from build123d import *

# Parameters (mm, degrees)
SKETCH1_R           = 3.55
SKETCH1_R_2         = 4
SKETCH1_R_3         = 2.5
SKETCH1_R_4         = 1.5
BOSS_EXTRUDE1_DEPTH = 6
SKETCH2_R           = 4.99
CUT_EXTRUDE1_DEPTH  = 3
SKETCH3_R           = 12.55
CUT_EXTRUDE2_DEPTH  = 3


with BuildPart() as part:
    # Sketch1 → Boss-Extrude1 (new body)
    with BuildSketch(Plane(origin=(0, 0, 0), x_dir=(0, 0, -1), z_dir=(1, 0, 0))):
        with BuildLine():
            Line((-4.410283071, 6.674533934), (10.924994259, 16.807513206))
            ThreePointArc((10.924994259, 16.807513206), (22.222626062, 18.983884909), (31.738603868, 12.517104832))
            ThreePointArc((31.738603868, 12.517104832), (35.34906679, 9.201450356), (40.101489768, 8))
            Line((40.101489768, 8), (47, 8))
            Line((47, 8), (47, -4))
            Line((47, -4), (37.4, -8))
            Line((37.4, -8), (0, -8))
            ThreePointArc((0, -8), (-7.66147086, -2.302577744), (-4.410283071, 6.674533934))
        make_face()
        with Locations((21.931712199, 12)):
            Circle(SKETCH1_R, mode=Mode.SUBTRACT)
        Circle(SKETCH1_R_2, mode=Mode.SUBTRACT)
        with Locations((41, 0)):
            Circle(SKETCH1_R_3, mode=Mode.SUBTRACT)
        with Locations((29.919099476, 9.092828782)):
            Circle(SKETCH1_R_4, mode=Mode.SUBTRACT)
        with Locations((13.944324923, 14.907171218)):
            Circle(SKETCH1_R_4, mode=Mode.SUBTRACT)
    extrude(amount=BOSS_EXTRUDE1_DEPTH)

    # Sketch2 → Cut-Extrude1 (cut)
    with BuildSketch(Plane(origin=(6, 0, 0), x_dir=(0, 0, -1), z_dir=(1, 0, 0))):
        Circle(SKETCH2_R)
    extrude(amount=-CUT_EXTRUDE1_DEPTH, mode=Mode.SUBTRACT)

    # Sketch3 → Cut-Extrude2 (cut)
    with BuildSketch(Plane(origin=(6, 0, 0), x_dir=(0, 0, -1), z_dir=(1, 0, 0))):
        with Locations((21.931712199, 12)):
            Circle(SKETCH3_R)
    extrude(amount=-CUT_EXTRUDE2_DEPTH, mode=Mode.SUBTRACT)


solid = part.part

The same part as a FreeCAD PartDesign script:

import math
import FreeCAD as App
import Part
import Sketcher

doc = App.newDocument("Part")
body = doc.addObject("PartDesign::Body", "Body")

sketch1 = body.newObject("Sketcher::SketchObject", "Sketch")
sketch1.AttachmentSupport = (doc.getObject("YZ_Plane"), [""])
sketch1.MapMode = "FlatFace"
sketch1.addGeometry([
    Part.LineSegment(App.Vector(16.8, -10.9, 0), App.Vector(6.7, 4.4, 0)),
    Part.ArcOfCircle(Part.Circle(App.Vector(0, 0, 0), App.Vector(0, 0, 1), 8), math.radians(33), math.radians(180)),
    Part.LineSegment(App.Vector(-8, 0, 0), App.Vector(-8, -37.4, 0)),
    Part.LineSegment(App.Vector(-8, -37.4, 0), App.Vector(-4, -47, 0)),
    Part.LineSegment(App.Vector(-4, -47, 0), App.Vector(8, -47, 0)),
    Part.LineSegment(App.Vector(8, -47, 0), App.Vector(8, -40.1, 0)),
    Part.ArcOfCircle(Part.Circle(App.Vector(18, -40.1, 0), App.Vector(0, 0, 1), 10), math.radians(123), math.radians(180)),
    Part.ArcOfCircle(Part.Circle(App.Vector(4.3, -19.2, 0), App.Vector(0, 0, 1), 15), math.radians(-57), math.radians(33)),
    Part.Circle(App.Vector(0, -41, 0), App.Vector(0, 0, 1), 2.5),
    Part.Circle(App.Vector(0, 0, 0), App.Vector(0, 0, 1), 4),
    Part.Circle(App.Vector(9.1, -29.9, 0), App.Vector(0, 0, 1), 1.5),
    Part.Circle(App.Vector(12, -21.9, 0), App.Vector(0, 0, 1), 3.5),
    Part.Circle(App.Vector(14.9, -13.9, 0), App.Vector(0, 0, 1), 1.5),
], False)
sketch1.addConstraint([
    Sketcher.Constraint("Tangent", 0, 2, 1, 1),
    Sketcher.Constraint("Tangent", 1, 2, 2, 1),
    Sketcher.Constraint("Coincident", 2, 2, 3, 1),
    Sketcher.Constraint("Coincident", 3, 2, 4, 1),
    Sketcher.Constraint("Coincident", 4, 2, 5, 1),
    Sketcher.Constraint("Tangent", 5, 2, 6, 2),
    Sketcher.Constraint("Tangent", 6, 1, 7, 1),
    Sketcher.Constraint("Tangent", 7, 2, 0, 1),
    Sketcher.Constraint("Vertical", 2),
    Sketcher.Constraint("Horizontal", 4),
    Sketcher.Constraint("Vertical", 5),
    Sketcher.Constraint("Coincident", 1, 3, -1, 1),
    Sketcher.Constraint("Coincident", 9, 3, -1, 1),
    Sketcher.Constraint("Equal", 10, 12),
    Sketcher.Constraint("PointOnObject", 8, 3, -2),
    Sketcher.Constraint("Diameter", 8, 5.0),
    Sketcher.Constraint("Diameter", 9, 8.0),
    Sketcher.Constraint("Diameter", 10, 3.0),
    Sketcher.Constraint("Radius", 1, 8.0),
    Sketcher.Constraint("Radius", 6, 10.0),
    Sketcher.Constraint("Radius", 7, 15.0),
    Sketcher.Constraint("Diameter", 11, 7.1),
    Sketcher.Constraint("DistanceX", 4, 1, 4, 2, 12.0),
    Sketcher.Constraint("DistanceY", 2, 2, 2, 1, 37.4),
    Sketcher.Constraint("DistanceX", -1, 1, 6, 3, 18.0),
    Sketcher.Constraint("DistanceY", 8, 3, -1, 1, 41.0),
    Sketcher.Constraint("DistanceX", -1, 1, 11, 3, 12.0),
    Sketcher.Constraint("DistanceY", 3, 2, -1, 1, 47.0),
    Sketcher.Constraint("DistanceY", 5, 1, 5, 2, 6.89851),
    Sketcher.Constraint("DistanceY", 10, 3, -1, 1, 29.919099),
    Sketcher.Constraint("Distance", 0, 18.380642),
    Sketcher.Constraint("DistanceX", -1, 1, 10, 3, 9.092829),
    Sketcher.Constraint("DistanceX", -1, 1, 12, 3, 14.907171),
    Sketcher.Constraint("DistanceY", 7, 3, 12, 3, 5.24995),
    Sketcher.Constraint("DistanceY", 6, 1, 11, 3, 9.806892),
])
pad1 = body.newObject("PartDesign::Pad", "Pad")
pad1.Profile = sketch1
pad1.Length = 6

sketch2 = body.newObject("Sketcher::SketchObject", "Sketch001")
sketch2.AttachmentSupport = (doc.getObject("YZ_Plane"), [""])
sketch2.MapMode = "FlatFace"
sketch2.AttachmentOffset = App.Placement(App.Vector(0, 0, 6), App.Rotation())
sketch2.addGeometry(Part.Circle(App.Vector(0, 0, 0), App.Vector(0, 0, 1), 5), False)
sketch2.addConstraint([
    Sketcher.Constraint("Coincident", 0, 3, -1, 1),
    Sketcher.Constraint("Diameter", 0, 9.98),
])
pocket1 = body.newObject("PartDesign::Pocket", "Pocket")
pocket1.Profile = sketch2
pocket1.Length = 3

sketch3 = body.newObject("Sketcher::SketchObject", "Sketch002")
sketch3.AttachmentSupport = (doc.getObject("YZ_Plane"), [""])
sketch3.MapMode = "FlatFace"
sketch3.AttachmentOffset = App.Placement(App.Vector(0, 0, 6), App.Rotation())
sketch3.addGeometry(Part.Circle(App.Vector(12, -22, 0), App.Vector(0, 0, 1), 13), False)
sketch3.addConstraint([
    Sketcher.Constraint("Diameter", 0, 25.1),
    Sketcher.Constraint("DistanceX", -1, 1, 0, 3, 12.0),
    Sketcher.Constraint("DistanceY", 0, 3, -1, 1, 21.931712),
])
pocket2 = body.newObject("PartDesign::Pocket", "Pocket001")
pocket2.Profile = sketch3
pocket2.Length = 3

doc.recompute()
